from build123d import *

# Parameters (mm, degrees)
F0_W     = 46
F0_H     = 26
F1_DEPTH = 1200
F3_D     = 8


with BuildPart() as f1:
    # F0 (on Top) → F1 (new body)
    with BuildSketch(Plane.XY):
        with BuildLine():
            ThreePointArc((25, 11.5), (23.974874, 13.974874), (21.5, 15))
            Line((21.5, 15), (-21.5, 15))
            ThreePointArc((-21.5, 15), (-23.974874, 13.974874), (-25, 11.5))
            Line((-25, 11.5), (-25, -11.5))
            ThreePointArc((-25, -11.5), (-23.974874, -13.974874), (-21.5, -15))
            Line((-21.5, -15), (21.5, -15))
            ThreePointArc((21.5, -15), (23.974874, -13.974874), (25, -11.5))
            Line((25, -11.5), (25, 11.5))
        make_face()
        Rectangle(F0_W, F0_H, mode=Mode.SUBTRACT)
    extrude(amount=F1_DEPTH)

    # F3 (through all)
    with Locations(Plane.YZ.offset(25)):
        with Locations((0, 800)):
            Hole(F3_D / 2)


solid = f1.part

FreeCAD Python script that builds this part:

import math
import FreeCAD as App
import Part
import Sketcher

doc = App.newDocument("Part")
body = doc.addObject("PartDesign::Body", "Body")

# Sketch on XY plane
sketch1 = doc.addObject("Sketcher::SketchObject", "Sketch")
body.addObject(sketch1)
sketch1.AttachmentSupport = (doc.XY_Plane, [""])
sketch1.MapMode = "FlatFace"
sketch1.addGeometry([
    Part.ArcOfCircle(Part.Circle(App.Vector(21.5, 11.5, 0), App.Vector(0, 0, 1), 3.5), math.radians(0), math.radians(90)),  # 0
    Part.LineSegment(App.Vector(21.5, 15, 0), App.Vector(-21.5, 15, 0)),  # 1
    Part.ArcOfCircle(Part.Circle(App.Vector(-21.5, 11.5, 0), App.Vector(0, 0, 1), 3.5), math.radians(90), math.radians(180)),  # 2
    Part.LineSegment(App.Vector(-25, 11.5, 0), App.Vector(-25, -11.5, 0)),  # 3
    Part.ArcOfCircle(Part.Circle(App.Vector(-21.5, -11.5, 0), App.Vector(0, 0, 1), 3.5), math.radians(180), math.radians(270)),  # 4
    Part.LineSegment(App.Vector(-21.5, -15, 0), App.Vector(21.5, -15, 0)),  # 5
    Part.ArcOfCircle(Part.Circle(App.Vector(21.5, -11.5, 0), App.Vector(0, 0, 1), 3.5), math.radians(-90), math.radians(0)),  # 6
    Part.LineSegment(App.Vector(25, -11.5, 0), App.Vector(25, 11.5, 0)),  # 7
    Part.LineSegment(App.Vector(23, -13, 0), App.Vector(-23, -13, 0)),  # 8
    Part.LineSegment(App.Vector(-23, -13, 0), App.Vector(-23, 13, 0)),  # 9
    Part.LineSegment(App.Vector(-23, 13, 0), App.Vector(23, 13, 0)),  # 10
    Part.LineSegment(App.Vector(23, 13, 0), App.Vector(23, -13, 0)),  # 11
], False)
sketch1.addConstraint([
    Sketcher.Constraint("Tangent", 0, 2, 1, 1),
    Sketcher.Constraint("Tangent", 1, 2, 2, 1),
    Sketcher.Constraint("Tangent", 2, 2, 3, 1),
    Sketcher.Constraint("Tangent", 3, 2, 4, 1),
    Sketcher.Constraint("Tangent", 4, 2, 5, 1),
    Sketcher.Constraint("Tangent", 5, 2, 6, 1),
    Sketcher.Constraint("Tangent", 6, 2, 7, 1),
    Sketcher.Constraint("Tangent", 7, 2, 0, 1),
    Sketcher.Constraint("Coincident", 8, 2, 9, 1),
    Sketcher.Constraint("Coincident", 9, 2, 10, 1),
    Sketcher.Constraint("Coincident", 10, 2, 11, 1),
    Sketcher.Constraint("Coincident", 11, 2, 8, 1),
    Sketcher.Constraint("Horizontal", 1),
    Sketcher.Constraint("Vertical", 3),
    Sketcher.Constraint("Horizontal", 5),
    Sketcher.Constraint("Vertical", 7),
    Sketcher.Constraint("Horizontal", 8),
    Sketcher.Constraint("Vertical", 9),
    Sketcher.Constraint("Horizontal", 10),
    Sketcher.Constraint("Vertical", 11),
    Sketcher.Constraint("Equal", 0, 2),
    Sketcher.Constraint("Equal", 2, 4),
    Sketcher.Constraint("Equal", 4, 6),
    Sketcher.Constraint("Symmetric", 0, 3, 4, 3, -1, 1),
    Sketcher.Constraint("Symmetric", 8, 2, 10, 2, -1, 1),
    Sketcher.Constraint("Radius", 0, 3.499999),
    Sketcher.Constraint("DistanceX", 1, 2, 1, 1, 43.0),
    Sketcher.Constraint("DistanceX", 8, 2, 8, 1, 46.0),
    Sketcher.Constraint("DistanceY", 3, 2, 3, 1, 23.0),
    Sketcher.Constraint("DistanceY", 9, 1, 9, 2, 26.0),
])
pad1 = doc.addObject("PartDesign::Pad", "Pad")
body.addObject(pad1)
pad1.Profile = sketch1
pad1.Length = 1200

# Sketch on YZ plane
sketch2 = doc.addObject("Sketcher::SketchObject", "Sketch001")
body.addObject(sketch2)
sketch2.AttachmentSupport = (doc.YZ_Plane, [""])
sketch2.MapMode = "FlatFace"
sketch2.AttachmentOffset = App.Placement(App.Vector(0, 0, 25), App.Rotation())
sketch2.addGeometry(Part.Circle(App.Vector(0, 800, 0), App.Vector(0, 0, 1), 4), False)
sketch2.addConstraint([
    Sketcher.Constraint("PointOnObject", 0, 3, -2),
    Sketcher.Constraint("Diameter", 0, 8.0),
    Sketcher.Constraint("DistanceY", -1, 1, 0, 3, 800.0),
])
doc.recompute()
hole = doc.addObject("PartDesign::Hole", "Hole")
body.addObject(hole)
hole.Profile = sketch2
hole.ThreadType = "None"
hole.Diameter = 8
hole.DepthType = "ThroughAll"

doc.recompute()
